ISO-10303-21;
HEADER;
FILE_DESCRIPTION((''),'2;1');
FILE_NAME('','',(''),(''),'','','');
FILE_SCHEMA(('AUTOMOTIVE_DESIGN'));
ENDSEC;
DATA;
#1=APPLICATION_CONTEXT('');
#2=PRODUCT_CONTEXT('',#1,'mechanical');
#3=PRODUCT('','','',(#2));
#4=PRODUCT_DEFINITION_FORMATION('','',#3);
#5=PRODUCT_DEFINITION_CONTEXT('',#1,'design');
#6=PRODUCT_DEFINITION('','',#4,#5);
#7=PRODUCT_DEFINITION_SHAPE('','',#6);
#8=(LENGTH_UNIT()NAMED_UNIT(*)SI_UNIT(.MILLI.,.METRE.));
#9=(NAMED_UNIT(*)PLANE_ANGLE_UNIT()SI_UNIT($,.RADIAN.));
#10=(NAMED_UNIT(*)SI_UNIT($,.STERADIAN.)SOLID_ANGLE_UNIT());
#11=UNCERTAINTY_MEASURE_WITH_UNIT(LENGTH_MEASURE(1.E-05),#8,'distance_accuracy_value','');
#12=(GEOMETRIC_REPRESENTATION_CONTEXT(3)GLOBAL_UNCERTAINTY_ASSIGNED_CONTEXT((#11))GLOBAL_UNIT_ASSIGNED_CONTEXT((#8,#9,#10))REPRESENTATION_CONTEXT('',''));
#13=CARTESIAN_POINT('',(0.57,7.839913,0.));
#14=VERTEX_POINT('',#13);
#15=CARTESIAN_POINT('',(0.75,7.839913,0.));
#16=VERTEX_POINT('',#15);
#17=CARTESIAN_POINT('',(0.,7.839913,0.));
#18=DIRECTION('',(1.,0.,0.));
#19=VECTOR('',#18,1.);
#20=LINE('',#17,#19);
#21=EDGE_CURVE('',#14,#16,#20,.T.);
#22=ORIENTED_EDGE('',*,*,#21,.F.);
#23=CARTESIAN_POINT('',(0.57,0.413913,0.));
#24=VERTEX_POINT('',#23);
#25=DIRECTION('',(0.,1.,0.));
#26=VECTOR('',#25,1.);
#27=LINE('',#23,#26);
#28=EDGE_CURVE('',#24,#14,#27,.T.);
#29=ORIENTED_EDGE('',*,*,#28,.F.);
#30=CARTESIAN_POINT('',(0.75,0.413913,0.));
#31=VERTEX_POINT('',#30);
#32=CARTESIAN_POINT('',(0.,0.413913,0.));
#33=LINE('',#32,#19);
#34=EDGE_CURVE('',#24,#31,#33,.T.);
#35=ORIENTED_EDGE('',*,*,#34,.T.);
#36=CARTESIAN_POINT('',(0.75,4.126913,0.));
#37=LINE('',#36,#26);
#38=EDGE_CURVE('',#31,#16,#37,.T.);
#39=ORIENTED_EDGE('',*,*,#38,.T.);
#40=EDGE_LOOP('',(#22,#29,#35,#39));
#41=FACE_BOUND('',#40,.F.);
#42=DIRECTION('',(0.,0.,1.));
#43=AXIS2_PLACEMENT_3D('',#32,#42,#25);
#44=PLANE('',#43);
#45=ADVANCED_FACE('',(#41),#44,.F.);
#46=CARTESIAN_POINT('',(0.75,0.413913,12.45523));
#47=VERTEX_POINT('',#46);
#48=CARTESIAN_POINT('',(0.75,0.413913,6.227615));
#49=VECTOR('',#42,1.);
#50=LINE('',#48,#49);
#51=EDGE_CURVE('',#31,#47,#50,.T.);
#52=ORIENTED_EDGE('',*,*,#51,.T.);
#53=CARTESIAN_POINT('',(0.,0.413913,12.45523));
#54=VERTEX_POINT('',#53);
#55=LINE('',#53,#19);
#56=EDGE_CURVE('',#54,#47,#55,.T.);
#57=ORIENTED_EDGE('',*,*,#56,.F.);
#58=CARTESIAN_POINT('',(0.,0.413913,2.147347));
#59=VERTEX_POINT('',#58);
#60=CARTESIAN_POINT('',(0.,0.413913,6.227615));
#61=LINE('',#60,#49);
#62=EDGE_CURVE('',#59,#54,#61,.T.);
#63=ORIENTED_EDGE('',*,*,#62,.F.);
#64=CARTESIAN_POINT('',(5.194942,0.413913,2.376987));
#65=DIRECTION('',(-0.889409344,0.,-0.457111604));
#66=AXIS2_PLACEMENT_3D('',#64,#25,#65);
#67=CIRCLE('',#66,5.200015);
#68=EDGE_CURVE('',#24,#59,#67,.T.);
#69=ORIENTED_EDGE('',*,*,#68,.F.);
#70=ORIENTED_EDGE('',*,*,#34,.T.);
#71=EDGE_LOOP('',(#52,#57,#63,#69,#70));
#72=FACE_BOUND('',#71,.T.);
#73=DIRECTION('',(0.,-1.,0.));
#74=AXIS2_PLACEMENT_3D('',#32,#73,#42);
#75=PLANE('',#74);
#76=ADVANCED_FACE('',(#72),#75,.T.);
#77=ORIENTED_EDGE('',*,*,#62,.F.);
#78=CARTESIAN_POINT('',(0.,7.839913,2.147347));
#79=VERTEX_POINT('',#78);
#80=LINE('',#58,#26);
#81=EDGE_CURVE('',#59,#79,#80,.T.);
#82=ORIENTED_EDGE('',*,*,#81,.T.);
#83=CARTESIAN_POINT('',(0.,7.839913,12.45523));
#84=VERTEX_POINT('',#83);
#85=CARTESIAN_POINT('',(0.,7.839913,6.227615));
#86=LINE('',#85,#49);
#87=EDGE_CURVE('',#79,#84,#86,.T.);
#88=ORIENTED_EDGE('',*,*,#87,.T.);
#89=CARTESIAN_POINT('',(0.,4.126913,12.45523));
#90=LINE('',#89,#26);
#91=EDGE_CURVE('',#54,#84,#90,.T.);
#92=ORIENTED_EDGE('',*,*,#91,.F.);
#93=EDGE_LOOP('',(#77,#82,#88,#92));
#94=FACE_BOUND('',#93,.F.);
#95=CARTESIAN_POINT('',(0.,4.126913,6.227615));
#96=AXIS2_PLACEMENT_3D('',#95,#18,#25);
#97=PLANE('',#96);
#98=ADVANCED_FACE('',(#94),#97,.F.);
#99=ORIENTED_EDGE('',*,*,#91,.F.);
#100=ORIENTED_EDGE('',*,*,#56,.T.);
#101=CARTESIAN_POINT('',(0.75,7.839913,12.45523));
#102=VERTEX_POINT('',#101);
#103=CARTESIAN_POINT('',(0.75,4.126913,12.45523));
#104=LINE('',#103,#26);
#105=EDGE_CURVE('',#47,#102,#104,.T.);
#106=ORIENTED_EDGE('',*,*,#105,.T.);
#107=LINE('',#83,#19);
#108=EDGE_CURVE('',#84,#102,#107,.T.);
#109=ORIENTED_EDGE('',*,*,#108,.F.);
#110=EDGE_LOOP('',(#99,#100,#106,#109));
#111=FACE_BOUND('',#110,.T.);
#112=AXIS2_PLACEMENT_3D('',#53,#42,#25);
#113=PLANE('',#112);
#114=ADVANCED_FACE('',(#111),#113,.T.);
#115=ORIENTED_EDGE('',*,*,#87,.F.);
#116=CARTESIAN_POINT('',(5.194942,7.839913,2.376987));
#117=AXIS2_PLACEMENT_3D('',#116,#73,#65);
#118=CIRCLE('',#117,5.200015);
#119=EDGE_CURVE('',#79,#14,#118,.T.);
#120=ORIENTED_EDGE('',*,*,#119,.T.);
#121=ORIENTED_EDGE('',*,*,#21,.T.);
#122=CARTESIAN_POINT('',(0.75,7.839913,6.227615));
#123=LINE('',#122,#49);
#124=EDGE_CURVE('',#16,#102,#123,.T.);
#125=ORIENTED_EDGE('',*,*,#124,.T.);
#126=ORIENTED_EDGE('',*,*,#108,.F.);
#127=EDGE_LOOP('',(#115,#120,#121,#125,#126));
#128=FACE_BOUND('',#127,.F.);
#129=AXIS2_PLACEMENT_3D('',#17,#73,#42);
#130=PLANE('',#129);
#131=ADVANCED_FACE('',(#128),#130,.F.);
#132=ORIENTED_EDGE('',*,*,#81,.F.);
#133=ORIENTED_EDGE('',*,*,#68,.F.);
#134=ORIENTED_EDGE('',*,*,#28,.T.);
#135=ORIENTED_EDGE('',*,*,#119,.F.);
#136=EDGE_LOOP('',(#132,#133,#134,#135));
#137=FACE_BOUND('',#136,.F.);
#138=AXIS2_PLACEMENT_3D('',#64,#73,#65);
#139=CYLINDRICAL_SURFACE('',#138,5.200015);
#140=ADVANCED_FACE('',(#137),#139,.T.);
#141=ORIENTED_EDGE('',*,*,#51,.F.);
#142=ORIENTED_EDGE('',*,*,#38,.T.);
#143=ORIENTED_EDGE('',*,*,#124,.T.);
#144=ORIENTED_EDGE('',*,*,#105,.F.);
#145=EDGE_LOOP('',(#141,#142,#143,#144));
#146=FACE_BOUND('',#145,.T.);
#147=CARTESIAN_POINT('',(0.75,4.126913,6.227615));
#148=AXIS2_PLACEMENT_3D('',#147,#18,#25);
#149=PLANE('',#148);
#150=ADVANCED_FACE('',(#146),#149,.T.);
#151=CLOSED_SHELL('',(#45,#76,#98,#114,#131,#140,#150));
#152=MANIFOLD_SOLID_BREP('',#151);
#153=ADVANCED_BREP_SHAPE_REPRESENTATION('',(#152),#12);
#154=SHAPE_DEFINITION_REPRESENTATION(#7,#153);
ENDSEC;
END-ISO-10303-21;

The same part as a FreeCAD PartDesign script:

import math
import FreeCAD as App
import Part
import Sketcher
Q = App.Units.Quantity

doc = App.newDocument("Part")
body = doc.addObject("PartDesign::Body", "Body")

sketch1 = doc.addObject("Sketcher::SketchObject", "Sketch")
body.addObject(sketch1)
sketch1.AttachmentSupport = (doc.YZ_Plane, [""])
sketch1.MapMode = "FlatFace"
sketch1.addGeometry(Part.LineSegment(App.Vector(0.413913, 12.45523, 0), App.Vector(0.413913, 0, 0)), False)
sketch1.addGeometry(Part.LineSegment(App.Vector(0.413913, 0, 0), App.Vector(7.839913, 0, 0)), False)
sketch1.addGeometry(Part.LineSegment(App.Vector(7.839913, 0, 0), App.Vector(7.839913, 12.45523, 0)), False)
sketch1.addGeometry(Part.LineSegment(App.Vector(7.839913, 12.45523, 0), App.Vector(0.413913, 12.45523, 0)), False)
sketch1.addConstraint(Sketcher.Constraint("Coincident", 0, 2, 1, 1))
sketch1.addConstraint(Sketcher.Constraint("Coincident", 1, 2, 2, 1))
sketch1.addConstraint(Sketcher.Constraint("Coincident", 2, 2, 3, 1))
sketch1.addConstraint(Sketcher.Constraint("Coincident", 3, 2, 0, 1))
sketch1.addConstraint(Sketcher.Constraint("Vertical", 0))
sketch1.addConstraint(Sketcher.Constraint("Horizontal", 1))
sketch1.addConstraint(Sketcher.Constraint("Vertical", 2))
sketch1.addConstraint(Sketcher.Constraint("Horizontal", 3))
sketch1.addConstraint(Sketcher.Constraint("PointOnObject", 0, 2, -1))
sketch1.addConstraint(Sketcher.Constraint("DistanceX", 1, 1, 1, 2, Q("7.426 mm")))
sketch1.addConstraint(Sketcher.Constraint("DistanceY", 0, 2, 0, 1, Q("12.45523 mm")))
sketch1.addConstraint(Sketcher.Constraint("DistanceX", -1, 1, 0, 2, Q("0.413913 mm")))
pad1 = doc.addObject("PartDesign::Pad", "Pad")
body.addObject(pad1)
pad1.Profile = sketch1
pad1.Length = 0.75

sketch2 = doc.addObject("Sketcher::SketchObject", "Sketch001")
body.addObject(sketch2)
sketch2.AttachmentSupport = (doc.XZ_Plane, [""])
sketch2.MapMode = "FlatFace"
sketch2.AttachmentOffset = App.Placement(App.Vector(0, 0, -0.413913), App.Rotation())
sketch2.addGeometry(Part.ArcOfCircle(Part.Circle(App.Vector(5.194942, 2.376987, 0), App.Vector(0, 0, 1), 5.200015), math.radians(-177.468911), math.radians(-152.799119)), False)
sketch2.addGeometry(Part.LineSegment(App.Vector(0, 2.147347, 0), App.Vector(0, 0, 0)), False)
sketch2.addGeometry(Part.LineSegment(App.Vector(0, 0, 0), App.Vector(0.57, 0, 0)), False)
sketch2.addConstraint(Sketcher.Constraint("Coincident", 0, 1, 1, 1))
sketch2.addConstraint(Sketcher.Constraint("Coincident", 1, 2, 2, 1))
sketch2.addConstraint(Sketcher.Constraint("Coincident", 2, 2, 0, 2))
sketch2.addConstraint(Sketcher.Constraint("Vertical", 1))
sketch2.addConstraint(Sketcher.Constraint("Horizontal", 2))
sketch2.addConstraint(Sketcher.Constraint("Coincident", 1, 2, -1, 1))
sketch2.addConstraint(Sketcher.Constraint("DistanceX", 2, 1, 2, 2, Q("0.57 mm")))
sketch2.addConstraint(Sketcher.Constraint("Radius", 0, Q("5.200015 mm")))
sketch2.addConstraint(Sketcher.Constraint("DistanceY", 1, 2, 1, 1, Q("2.147347 mm")))
pocket1 = doc.addObject("PartDesign::Pocket", "Pocket")
body.addObject(pocket1)
pocket1.Profile = sketch2
pocket1.Type = "ThroughAll"

doc.recompute()
